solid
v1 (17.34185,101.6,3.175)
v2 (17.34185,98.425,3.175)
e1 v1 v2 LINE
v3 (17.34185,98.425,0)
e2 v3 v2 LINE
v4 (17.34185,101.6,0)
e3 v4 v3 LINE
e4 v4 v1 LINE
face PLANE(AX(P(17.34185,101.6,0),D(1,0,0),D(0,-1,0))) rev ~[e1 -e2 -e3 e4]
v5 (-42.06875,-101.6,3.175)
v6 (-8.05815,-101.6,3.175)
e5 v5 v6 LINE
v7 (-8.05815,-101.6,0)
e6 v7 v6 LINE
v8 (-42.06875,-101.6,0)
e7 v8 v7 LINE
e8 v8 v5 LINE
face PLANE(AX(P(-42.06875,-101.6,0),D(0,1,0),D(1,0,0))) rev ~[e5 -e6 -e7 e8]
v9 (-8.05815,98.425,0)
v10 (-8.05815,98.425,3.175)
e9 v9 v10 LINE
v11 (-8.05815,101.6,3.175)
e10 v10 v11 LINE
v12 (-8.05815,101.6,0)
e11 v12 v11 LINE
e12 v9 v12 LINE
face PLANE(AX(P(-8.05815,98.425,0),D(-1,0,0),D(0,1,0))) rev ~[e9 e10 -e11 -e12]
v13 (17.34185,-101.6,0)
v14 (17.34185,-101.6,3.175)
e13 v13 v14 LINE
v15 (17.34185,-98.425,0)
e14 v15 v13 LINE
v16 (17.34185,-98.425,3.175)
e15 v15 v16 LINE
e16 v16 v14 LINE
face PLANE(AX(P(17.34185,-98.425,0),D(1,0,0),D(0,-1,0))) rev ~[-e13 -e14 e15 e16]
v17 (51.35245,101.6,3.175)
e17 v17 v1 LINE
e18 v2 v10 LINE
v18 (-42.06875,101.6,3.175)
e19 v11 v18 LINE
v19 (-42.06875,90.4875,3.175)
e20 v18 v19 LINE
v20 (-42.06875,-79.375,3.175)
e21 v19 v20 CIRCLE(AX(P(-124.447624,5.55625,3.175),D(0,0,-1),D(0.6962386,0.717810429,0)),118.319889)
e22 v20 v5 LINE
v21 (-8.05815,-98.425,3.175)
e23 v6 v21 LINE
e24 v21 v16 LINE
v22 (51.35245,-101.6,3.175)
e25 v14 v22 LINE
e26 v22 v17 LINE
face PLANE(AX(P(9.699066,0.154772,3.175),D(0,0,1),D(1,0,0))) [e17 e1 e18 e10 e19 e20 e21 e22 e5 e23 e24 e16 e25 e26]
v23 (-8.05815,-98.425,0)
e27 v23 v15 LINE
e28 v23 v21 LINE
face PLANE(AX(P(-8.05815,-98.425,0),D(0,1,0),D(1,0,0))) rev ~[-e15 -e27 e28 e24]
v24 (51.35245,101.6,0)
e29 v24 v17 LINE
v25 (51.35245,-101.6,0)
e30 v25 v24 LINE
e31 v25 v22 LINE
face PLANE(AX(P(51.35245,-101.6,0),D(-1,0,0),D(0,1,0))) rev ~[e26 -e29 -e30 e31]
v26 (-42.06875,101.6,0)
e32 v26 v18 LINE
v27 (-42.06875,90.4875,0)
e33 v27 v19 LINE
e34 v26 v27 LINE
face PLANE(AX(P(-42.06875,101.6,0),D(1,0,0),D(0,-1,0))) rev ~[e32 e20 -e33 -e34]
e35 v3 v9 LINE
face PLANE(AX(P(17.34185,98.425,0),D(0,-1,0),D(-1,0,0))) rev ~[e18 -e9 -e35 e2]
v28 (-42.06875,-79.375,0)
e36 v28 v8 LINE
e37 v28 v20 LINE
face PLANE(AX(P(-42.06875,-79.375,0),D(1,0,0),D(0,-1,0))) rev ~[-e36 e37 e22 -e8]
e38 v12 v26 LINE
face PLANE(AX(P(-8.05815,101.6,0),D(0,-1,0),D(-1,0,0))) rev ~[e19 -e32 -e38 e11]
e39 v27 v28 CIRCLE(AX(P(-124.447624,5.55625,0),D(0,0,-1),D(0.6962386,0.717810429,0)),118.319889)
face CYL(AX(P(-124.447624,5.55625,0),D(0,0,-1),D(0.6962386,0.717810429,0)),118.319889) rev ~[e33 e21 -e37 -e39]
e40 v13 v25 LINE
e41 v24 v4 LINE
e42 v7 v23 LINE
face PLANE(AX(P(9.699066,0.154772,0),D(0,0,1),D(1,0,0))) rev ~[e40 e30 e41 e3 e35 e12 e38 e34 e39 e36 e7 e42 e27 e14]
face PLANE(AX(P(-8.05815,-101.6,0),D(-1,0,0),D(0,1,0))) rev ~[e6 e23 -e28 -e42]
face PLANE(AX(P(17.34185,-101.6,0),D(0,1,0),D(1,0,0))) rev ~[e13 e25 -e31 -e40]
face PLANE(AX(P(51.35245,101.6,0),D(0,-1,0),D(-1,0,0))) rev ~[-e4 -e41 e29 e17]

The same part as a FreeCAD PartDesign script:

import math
import FreeCAD as App
import Part
import Sketcher

V = App.Vector
Q = App.Units.Quantity

doc = App.newDocument("Part")
params = doc.addObject("Spreadsheet::Sheet", "Params")
for row, (alias, value) in enumerate([
    ("sketch1_width", "1 in"),
    ("sketch1_height", "8 in"),
    ("sketch1_width2", "1.339 in"),
    ("sketch1_height2", "0.875 in"),
    ("sketch1_height3", "0.125 in"),
    ("pad1_length", "0.125 in"),
], start=1):
    params.set(f"A{row}", alias)
    params.set(f"B{row}", "=" + value)
    params.setAlias(f"B{row}", alias)

body = doc.addObject("PartDesign::Body", "Body")

sketch1 = body.newObject("Sketcher::SketchObject", "Sketch")
sketch1.AttachmentSupport = (doc.getObject("XY_Plane"), [""])
sketch1.MapMode = "FlatFace"
sketch1.addGeometry(Part.LineSegment(V(-42.1, -79.4, 0), V(-42.1, -101.6, 0)), False)
sketch1.addGeometry(Part.LineSegment(V(-42.1, -101.6, 0), V(-8.1, -101.6, 0)), False)
sketch1.addGeometry(Part.LineSegment(V(-8.1, -101.6, 0), V(-8.1, -98.4, 0)), False)
sketch1.addGeometry(Part.LineSegment(V(-8.1, -98.4, 0), V(17.3, -98.4, 0)), False)
sketch1.addGeometry(Part.LineSegment(V(17.3, -98.4, 0), V(17.3, -101.6, 0)), False)
sketch1.addGeometry(Part.LineSegment(V(17.3, -101.6, 0), V(51.4, -101.6, 0)), False)
sketch1.addGeometry(Part.LineSegment(V(51.4, -101.6, 0), V(51.4, 101.6, 0)), False)
sketch1.addGeometry(Part.LineSegment(V(51.4, 101.6, 0), V(17.3, 101.6, 0)), False)
sketch1.addGeometry(Part.LineSegment(V(17.3, 101.6, 0), V(17.3, 98.4, 0)), False)
sketch1.addGeometry(Part.LineSegment(V(17.3, 98.4, 0), V(-8.1, 98.4, 0)), False)
sketch1.addGeometry(Part.LineSegment(V(-8.1, 98.4, 0), V(-8.1, 101.6, 0)), False)
sketch1.addGeometry(Part.LineSegment(V(-8.1, 101.6, 0), V(-42.1, 101.6, 0)), False)
sketch1.addGeometry(Part.LineSegment(V(-42.1, 101.6, 0), V(-42.1, 90.5, 0)), False)
sketch1.addGeometry(Part.ArcOfCircle(Part.Circle(V(-124.4, 5.6, 0), V(0, 0, 1), 118.3), math.radians(-46), math.radians(46)), False)
sketch1.addConstraint(Sketcher.Constraint("Coincident", 0, 2, 1, 1))
sketch1.addConstraint(Sketcher.Constraint("Coincident", 1, 2, 2, 1))
sketch1.addConstraint(Sketcher.Constraint("Coincident", 2, 2, 3, 1))
sketch1.addConstraint(Sketcher.Constraint("Coincident", 3, 2, 4, 1))
sketch1.addConstraint(Sketcher.Constraint("Coincident", 4, 2, 5, 1))
sketch1.addConstraint(Sketcher.Constraint("Coincident", 5, 2, 6, 1))
sketch1.addConstraint(Sketcher.Constraint("Coincident", 6, 2, 7, 1))
sketch1.addConstraint(Sketcher.Constraint("Coincident", 7, 2, 8, 1))
sketch1.addConstraint(Sketcher.Constraint("Coincident", 8, 2, 9, 1))
sketch1.addConstraint(Sketcher.Constraint("Coincident", 9, 2, 10, 1))
sketch1.addConstraint(Sketcher.Constraint("Coincident", 10, 2, 11, 1))
sketch1.addConstraint(Sketcher.Constraint("Coincident", 11, 2, 12, 1))
sketch1.addConstraint(Sketcher.Constraint("Coincident", 12, 2, 13, 2))
sketch1.addConstraint(Sketcher.Constraint("Coincident", 13, 1, 0, 1))
sketch1.addConstraint(Sketcher.Constraint("Vertical", 0))
sketch1.addConstraint(Sketcher.Constraint("Horizontal", 1))
sketch1.addConstraint(Sketcher.Constraint("Vertical", 2))
sketch1.addConstraint(Sketcher.Constraint("Horizontal", 3))
sketch1.addConstraint(Sketcher.Constraint("Vertical", 4))
sketch1.addConstraint(Sketcher.Constraint("Horizontal", 5))
sketch1.addConstraint(Sketcher.Constraint("Vertical", 6))
sketch1.addConstraint(Sketcher.Constraint("Horizontal", 7))
sketch1.addConstraint(Sketcher.Constraint("Vertical", 8))
sketch1.addConstraint(Sketcher.Constraint("Horizontal", 9))
sketch1.addConstraint(Sketcher.Constraint("Vertical", 10))
sketch1.addConstraint(Sketcher.Constraint("Horizontal", 11))
sketch1.addConstraint(Sketcher.Constraint("Vertical", 12))
sketch1.addConstraint(Sketcher.Constraint("Symmetric", 4, 2, 7, 2, -1))
sketch1.addConstraint(Sketcher.Constraint("Symmetric", 2, 2, 9, 2, -1))
sketch1.addConstraint(Sketcher.Constraint("Symmetric", 0, 2, 11, 2, -1))
sketch1.addConstraint(Sketcher.Constraint("Horizontal", 1, 2, 4, 2))
sketch1.addConstraint(Sketcher.Constraint("Equal", 1, 5))
sketch1.addConstraint(Sketcher.Constraint("DistanceX", 3, 1, 3, 2, Q("1 in")))
sketch1.addConstraint(Sketcher.Constraint("DistanceY", 6, 1, 6, 2, Q("8 in")))
sketch1.addConstraint(Sketcher.Constraint("DistanceX", 1, 1, 1, 2, Q("1.339 in")))
sketch1.addConstraint(Sketcher.Constraint("DistanceY", 0, 2, 0, 1, Q("0.875 in")))
sketch1.addConstraint(Sketcher.Constraint("DistanceY", 2, 1, 2, 2, Q("0.125 in")))
sketch1.addConstraint(Sketcher.Constraint("DistanceY", 12, 2, 12, 1, Q("0.4375 in")))
sketch1.addConstraint(Sketcher.Constraint("DistanceX", 0, 2, -1, 1, Q("1.65625 in")))
sketch1.addConstraint(Sketcher.Constraint("Radius", 13, 118.319889))
sketch1.setExpression("Constraints[32]", "Params.sketch1_width")
sketch1.setExpression("Constraints[33]", "Params.sketch1_height")
sketch1.setExpression("Constraints[34]", "Params.sketch1_width2")
sketch1.setExpression("Constraints[35]", "Params.sketch1_height2")
sketch1.setExpression("Constraints[36]", "Params.sketch1_height3")
pad1 = body.newObject("PartDesign::Pad", "Pad")
pad1.Profile = sketch1
pad1.setExpression("Length", "Params.pad1_length")

doc.recompute()
